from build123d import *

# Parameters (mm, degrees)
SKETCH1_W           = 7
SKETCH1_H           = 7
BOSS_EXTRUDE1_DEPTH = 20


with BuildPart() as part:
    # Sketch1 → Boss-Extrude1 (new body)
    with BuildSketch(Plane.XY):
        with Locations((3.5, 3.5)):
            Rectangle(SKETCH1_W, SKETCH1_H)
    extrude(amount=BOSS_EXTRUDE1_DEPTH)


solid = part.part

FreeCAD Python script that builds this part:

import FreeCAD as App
import Part
import Sketcher
from FreeCAD import Vector
Q = App.Units.Quantity


def add_polygon(sketch, points):
    """Adds a closed chain of lines whose ends are joined by coincident constraints."""
    first, n = sketch.GeometryCount, len(points)
    for a, b in zip(points, points[1:] + points[:1]):
        sketch.addGeometry(Part.LineSegment(App.Vector(*a, 0), App.Vector(*b, 0)), False)
    for i in range(n):
        sketch.addConstraint(Sketcher.Constraint("Coincident", first + i, 2, first + (i + 1) % n, 1))

doc = App.newDocument("Part")
params = doc.addObject("Spreadsheet::Sheet", "Params")
for row, (alias, value) in enumerate([
    ("sketch1_width", "7 mm"),
    ("pad1_length", "20 mm"),
], start=1):
    params.set(f"A{row}", alias)
    params.set(f"B{row}", "=" + value)
    params.setAlias(f"B{row}", alias)

body = doc.addObject("PartDesign::Body", "Body")

sketch1 = doc.addObject("Sketcher::SketchObject", "Sketch")
body.addObject(sketch1)
sketch1.AttachmentSupport = (doc.XY_Plane, [""])
sketch1.MapMode = "FlatFace"
add_polygon(sketch1, [(0, 7), (0, 0), (7, 0), (7, 7)])
sketch1.addConstraint([
    Sketcher.Constraint("Vertical", 0),
    Sketcher.Constraint("Horizontal", 1),
    Sketcher.Constraint("Vertical", 2),
    Sketcher.Constraint("Horizontal", 3),
    Sketcher.Constraint("Coincident", 0, 2, -1, 1),
    Sketcher.Constraint("Equal", 3, 0),
    Sketcher.Constraint("DistanceX", 1, 1, 1, 2, Q("7 mm")),
])
sketch1.setExpression("Constraints[10]", "Params.sketch1_width")
pad1 = doc.addObject("PartDesign::Pad", "Pad")
body.addObject(pad1)
pad1.Profile = sketch1
pad1.setExpression("Length", "Params.pad1_length")

doc.recompute()
